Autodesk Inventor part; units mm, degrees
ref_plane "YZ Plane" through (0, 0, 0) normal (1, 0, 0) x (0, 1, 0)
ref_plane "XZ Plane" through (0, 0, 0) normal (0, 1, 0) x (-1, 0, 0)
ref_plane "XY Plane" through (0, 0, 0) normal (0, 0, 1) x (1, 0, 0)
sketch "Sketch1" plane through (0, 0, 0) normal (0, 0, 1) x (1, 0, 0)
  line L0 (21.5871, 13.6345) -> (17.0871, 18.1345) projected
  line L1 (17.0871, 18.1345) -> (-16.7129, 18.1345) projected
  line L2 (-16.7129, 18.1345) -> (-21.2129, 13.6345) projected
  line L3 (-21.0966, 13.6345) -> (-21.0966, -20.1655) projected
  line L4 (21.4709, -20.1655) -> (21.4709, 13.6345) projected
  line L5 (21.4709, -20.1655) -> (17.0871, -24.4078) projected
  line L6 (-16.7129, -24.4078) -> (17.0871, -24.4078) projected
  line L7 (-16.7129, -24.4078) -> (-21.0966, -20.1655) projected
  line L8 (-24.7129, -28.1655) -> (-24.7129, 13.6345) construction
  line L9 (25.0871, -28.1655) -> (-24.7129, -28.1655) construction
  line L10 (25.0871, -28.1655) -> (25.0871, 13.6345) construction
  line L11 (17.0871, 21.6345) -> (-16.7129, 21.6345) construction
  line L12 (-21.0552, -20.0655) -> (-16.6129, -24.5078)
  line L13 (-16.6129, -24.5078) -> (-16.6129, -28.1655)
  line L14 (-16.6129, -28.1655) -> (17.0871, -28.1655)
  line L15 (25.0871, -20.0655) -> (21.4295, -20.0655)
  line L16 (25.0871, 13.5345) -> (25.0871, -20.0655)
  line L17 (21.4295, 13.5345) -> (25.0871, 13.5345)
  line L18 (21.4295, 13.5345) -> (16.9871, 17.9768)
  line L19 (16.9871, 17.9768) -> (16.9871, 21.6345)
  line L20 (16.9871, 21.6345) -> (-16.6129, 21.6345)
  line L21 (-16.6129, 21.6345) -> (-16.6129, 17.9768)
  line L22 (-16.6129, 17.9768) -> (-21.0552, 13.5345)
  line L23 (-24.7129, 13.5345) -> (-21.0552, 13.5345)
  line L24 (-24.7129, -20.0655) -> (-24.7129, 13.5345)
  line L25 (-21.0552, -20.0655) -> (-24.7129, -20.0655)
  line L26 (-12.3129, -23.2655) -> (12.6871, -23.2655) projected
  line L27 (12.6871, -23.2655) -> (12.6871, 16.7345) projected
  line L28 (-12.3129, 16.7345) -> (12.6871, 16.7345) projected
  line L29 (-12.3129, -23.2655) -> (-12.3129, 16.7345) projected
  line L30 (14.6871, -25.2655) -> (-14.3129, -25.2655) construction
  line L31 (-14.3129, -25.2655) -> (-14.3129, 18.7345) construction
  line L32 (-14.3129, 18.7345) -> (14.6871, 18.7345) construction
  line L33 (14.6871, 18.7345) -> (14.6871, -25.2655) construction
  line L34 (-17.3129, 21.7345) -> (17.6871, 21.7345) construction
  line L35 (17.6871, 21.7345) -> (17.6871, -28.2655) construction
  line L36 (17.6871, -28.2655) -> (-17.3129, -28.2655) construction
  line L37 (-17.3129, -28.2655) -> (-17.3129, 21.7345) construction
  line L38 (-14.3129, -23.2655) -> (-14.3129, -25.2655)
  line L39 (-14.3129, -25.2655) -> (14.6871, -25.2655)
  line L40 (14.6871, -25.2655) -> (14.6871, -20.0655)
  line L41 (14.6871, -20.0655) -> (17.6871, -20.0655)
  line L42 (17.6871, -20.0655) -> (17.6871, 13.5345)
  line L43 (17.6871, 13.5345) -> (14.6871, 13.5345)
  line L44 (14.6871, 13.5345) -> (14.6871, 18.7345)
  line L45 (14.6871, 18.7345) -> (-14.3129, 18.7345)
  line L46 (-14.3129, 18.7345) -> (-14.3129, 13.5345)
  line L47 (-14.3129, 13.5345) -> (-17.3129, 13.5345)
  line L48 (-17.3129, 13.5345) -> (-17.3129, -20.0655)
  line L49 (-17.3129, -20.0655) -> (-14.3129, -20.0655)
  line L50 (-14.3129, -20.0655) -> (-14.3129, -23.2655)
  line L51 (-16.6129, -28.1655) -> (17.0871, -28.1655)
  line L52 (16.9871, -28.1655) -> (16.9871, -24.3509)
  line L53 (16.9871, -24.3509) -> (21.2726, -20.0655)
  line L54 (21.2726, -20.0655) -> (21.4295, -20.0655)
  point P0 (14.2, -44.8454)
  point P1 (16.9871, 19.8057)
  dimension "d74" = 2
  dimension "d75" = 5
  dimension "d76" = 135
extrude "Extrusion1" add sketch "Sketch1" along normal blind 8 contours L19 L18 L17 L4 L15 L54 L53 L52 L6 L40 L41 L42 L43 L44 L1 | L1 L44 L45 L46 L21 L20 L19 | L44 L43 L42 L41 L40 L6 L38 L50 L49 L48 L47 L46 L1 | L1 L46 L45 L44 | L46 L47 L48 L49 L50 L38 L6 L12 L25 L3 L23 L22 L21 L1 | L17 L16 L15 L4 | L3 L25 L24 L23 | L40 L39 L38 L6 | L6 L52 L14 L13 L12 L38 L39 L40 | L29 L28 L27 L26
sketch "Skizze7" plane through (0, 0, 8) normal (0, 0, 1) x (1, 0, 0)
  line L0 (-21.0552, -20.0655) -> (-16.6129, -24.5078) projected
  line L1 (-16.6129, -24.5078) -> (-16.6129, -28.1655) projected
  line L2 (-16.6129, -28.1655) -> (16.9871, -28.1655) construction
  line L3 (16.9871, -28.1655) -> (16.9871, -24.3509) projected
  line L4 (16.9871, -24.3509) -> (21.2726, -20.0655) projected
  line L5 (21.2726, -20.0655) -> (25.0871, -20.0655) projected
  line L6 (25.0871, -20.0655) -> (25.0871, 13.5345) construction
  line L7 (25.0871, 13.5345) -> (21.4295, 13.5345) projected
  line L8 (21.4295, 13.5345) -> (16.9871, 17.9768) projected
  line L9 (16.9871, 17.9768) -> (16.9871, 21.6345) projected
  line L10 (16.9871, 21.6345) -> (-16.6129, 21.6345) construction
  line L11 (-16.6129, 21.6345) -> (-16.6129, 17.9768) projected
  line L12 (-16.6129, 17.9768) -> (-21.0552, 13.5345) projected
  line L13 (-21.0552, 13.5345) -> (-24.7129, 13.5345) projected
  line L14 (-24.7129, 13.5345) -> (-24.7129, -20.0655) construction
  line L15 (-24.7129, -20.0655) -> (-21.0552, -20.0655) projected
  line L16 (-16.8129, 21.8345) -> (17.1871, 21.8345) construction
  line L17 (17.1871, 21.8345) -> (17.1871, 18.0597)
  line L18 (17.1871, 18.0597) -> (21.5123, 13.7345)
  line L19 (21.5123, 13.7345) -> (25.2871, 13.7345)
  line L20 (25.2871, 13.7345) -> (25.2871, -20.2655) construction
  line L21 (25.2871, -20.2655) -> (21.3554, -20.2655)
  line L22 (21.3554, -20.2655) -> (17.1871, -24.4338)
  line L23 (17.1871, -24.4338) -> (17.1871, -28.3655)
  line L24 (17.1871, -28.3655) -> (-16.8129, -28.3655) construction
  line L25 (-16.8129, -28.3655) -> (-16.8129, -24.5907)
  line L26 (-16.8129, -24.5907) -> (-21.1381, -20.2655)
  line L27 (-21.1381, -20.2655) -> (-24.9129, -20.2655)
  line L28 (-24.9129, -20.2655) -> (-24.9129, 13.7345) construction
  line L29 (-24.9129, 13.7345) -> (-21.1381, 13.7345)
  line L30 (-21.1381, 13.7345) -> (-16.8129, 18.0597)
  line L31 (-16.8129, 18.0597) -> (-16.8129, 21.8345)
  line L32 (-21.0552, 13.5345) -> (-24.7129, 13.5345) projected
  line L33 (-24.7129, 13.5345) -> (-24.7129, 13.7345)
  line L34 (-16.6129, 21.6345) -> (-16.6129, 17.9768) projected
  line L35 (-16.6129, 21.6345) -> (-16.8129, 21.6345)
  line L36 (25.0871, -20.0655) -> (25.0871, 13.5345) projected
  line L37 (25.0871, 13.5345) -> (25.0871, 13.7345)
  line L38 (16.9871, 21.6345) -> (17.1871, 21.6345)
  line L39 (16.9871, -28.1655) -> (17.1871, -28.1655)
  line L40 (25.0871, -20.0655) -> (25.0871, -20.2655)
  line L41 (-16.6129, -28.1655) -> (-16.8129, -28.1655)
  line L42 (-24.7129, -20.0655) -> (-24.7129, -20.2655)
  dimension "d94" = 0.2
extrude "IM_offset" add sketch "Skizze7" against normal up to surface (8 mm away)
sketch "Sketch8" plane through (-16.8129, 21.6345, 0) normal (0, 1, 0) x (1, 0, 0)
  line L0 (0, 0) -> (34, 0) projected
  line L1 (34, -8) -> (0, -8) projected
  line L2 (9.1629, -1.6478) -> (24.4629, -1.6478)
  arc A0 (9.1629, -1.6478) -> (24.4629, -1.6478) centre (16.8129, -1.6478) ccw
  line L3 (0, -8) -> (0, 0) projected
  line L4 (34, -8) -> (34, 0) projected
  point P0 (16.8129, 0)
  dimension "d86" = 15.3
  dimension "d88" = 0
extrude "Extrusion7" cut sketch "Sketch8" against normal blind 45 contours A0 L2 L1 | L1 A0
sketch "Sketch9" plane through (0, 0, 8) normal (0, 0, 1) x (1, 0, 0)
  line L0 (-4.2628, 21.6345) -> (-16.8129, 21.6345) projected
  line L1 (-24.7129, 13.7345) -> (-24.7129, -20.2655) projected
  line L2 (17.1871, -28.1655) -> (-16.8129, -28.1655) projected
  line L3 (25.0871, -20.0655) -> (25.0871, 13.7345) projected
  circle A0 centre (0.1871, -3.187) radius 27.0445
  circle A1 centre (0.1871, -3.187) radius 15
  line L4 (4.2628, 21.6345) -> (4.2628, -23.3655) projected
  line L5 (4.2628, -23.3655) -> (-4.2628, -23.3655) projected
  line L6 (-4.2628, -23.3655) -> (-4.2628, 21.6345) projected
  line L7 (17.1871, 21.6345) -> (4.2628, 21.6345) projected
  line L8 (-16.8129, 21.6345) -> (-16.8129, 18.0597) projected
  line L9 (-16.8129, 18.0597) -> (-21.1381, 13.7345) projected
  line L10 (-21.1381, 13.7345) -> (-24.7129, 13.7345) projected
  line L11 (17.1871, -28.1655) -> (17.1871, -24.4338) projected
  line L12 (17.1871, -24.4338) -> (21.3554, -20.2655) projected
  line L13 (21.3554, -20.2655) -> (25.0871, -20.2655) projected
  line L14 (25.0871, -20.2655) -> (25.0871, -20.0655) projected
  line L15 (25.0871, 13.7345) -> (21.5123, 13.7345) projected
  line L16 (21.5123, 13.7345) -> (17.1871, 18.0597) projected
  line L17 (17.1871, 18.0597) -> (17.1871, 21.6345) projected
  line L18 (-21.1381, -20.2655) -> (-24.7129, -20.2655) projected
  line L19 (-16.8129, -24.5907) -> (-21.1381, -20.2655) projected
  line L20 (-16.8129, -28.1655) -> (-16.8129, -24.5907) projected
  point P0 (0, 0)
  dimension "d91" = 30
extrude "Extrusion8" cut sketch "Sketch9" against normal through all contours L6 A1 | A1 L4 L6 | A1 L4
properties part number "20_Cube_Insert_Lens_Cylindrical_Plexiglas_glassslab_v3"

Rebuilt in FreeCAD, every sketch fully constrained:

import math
import FreeCAD as App
import Part
import Sketcher
Q = App.Units.Quantity


def add_polygon(sketch, points):
    """Adds a closed chain of lines whose ends are joined by coincident constraints."""
    first, n = sketch.GeometryCount, len(points)
    for a, b in zip(points, points[1:] + points[:1]):
        sketch.addGeometry(Part.LineSegment(App.Vector(*a, 0), App.Vector(*b, 0)), False)
    for i in range(n):
        sketch.addConstraint(Sketcher.Constraint("Coincident", first + i, 2, first + (i + 1) % n, 1))

doc = App.newDocument("Part")
body = doc.addObject("PartDesign::Body", "Body")

# Sketch on XY plane
sketch1 = body.newObject("Sketcher::SketchObject", "Sketch")
sketch1.AttachmentSupport = (doc.getObject("XY_Plane"), [""])
sketch1.MapMode = "FlatFace"
add_polygon(sketch1, [(17, 18), (17, 21.6), (-16.6, 21.6), (-16.6, 18), (-21.1, 13.5), (-24.7, 13.5), (-24.7, -20.1), (-21.1, -20.1), (-16.6, -24.5), (-16.6, -28.2), (17, -28.2), (17, -24.4), (21.3, -20.1), (25.1, -20.1), (25.1, 13.5), (21.4, 13.5)])  # lines 0-15
sketch1.addConstraint(Sketcher.Constraint("Vertical", 0))
sketch1.addConstraint(Sketcher.Constraint("Horizontal", 1))
sketch1.addConstraint(Sketcher.Constraint("Vertical", 2))
sketch1.addConstraint(Sketcher.Constraint("Horizontal", 4))
sketch1.addConstraint(Sketcher.Constraint("Vertical", 5))
sketch1.addConstraint(Sketcher.Constraint("Horizontal", 6))
sketch1.addConstraint(Sketcher.Constraint("Vertical", 8))
sketch1.addConstraint(Sketcher.Constraint("Horizontal", 9))
sketch1.addConstraint(Sketcher.Constraint("Vertical", 10))
sketch1.addConstraint(Sketcher.Constraint("Horizontal", 12))
sketch1.addConstraint(Sketcher.Constraint("Vertical", 13))
sketch1.addConstraint(Sketcher.Constraint("Horizontal", 14))
sketch1.addConstraint(Sketcher.Constraint("Perpendicular", 3, 7))
sketch1.addConstraint(Sketcher.Constraint("Perpendicular", 7, 11))
sketch1.addConstraint(Sketcher.Constraint("Perpendicular", 11, 15))
sketch1.addConstraint(Sketcher.Constraint("Horizontal", 6, 2, 11, 2))
sketch1.addConstraint(Sketcher.Constraint("Horizontal", 4, 2, 13, 2))
sketch1.addConstraint(Sketcher.Constraint("Horizontal", 2, 2, 15, 2))
sketch1.addConstraint(Sketcher.Constraint("Vertical", 3, 2, 6, 2))
sketch1.addConstraint(Sketcher.Constraint("Vertical", 2, 2, 7, 2))
sketch1.addConstraint(Sketcher.Constraint("Vertical", 0, 2, 9, 2))
sketch1.addConstraint(Sketcher.Constraint("Equal", 6, 14))
sketch1.addConstraint(Sketcher.Constraint("Equal", 14, 0))
sketch1.addConstraint(Sketcher.Constraint("Equal", 9, 5))
sketch1.addConstraint(Sketcher.Constraint("Equal", 2, 8))
sketch1.addConstraint(Sketcher.Constraint("Equal", 12, 10))
sketch1.addConstraint(Sketcher.Constraint("DistanceX", 1, 2, 1, 1, Q("33.6 mm")))
sketch1.addConstraint(Sketcher.Constraint("DistanceY", 3, 2, 1, 2, Q("8.1 mm")))
sketch1.addConstraint(Sketcher.Constraint("DistanceX", 4, 2, 4, 1, Q("3.6577 mm")))
sketch1.addConstraint(Sketcher.Constraint("DistanceX", 12, 1, 12, 2, Q("3.8145 mm")))
sketch1.addConstraint(Sketcher.Constraint("DistanceX", -1, 1, 0, 2, Q("16.987 mm")))
sketch1.addConstraint(Sketcher.Constraint("DistanceY", 10, 2, -1, 1, Q("24.351 mm")))
pad1 = body.newObject("PartDesign::Pad", "Pad")
pad1.Profile = sketch1
pad1.Length = 8

# Sketch on XY plane
sketch2 = body.newObject("Sketcher::SketchObject", "Sketch001")
sketch2.AttachmentSupport = (doc.getObject("XY_Plane"), [""])
sketch2.MapMode = "FlatFace"
sketch2.AttachmentOffset = App.Placement(App.Vector(0, 0, 8), App.Rotation())
add_polygon(sketch2, [(-16.61, -24.51), (-21.06, -20.07), (-24.71, -20.07), (-24.71, -20.27), (-21.14, -20.27), (-16.81, -24.59), (-16.81, -28.17), (-16.61, -28.17)])  # lines 0-7
add_polygon(sketch2, [(21.43, 13.53), (25.09, 13.53), (25.09, 13.73), (21.51, 13.73), (17.19, 18.06), (17.19, 21.63), (16.99, 21.63), (16.99, 17.98)])  # lines 8-15
add_polygon(sketch2, [(16.99, -24.35), (16.99, -28.17), (17.19, -28.17), (17.19, -24.43), (21.36, -20.27), (25.09, -20.27), (25.09, -20.07), (21.27, -20.07)])  # lines 16-23
add_polygon(sketch2, [(-16.61, 17.98), (-16.61, 21.63), (-16.81, 21.63), (-16.81, 18.06), (-21.14, 13.73), (-24.71, 13.73), (-24.71, 13.53), (-21.06, 13.53)])  # lines 24-31
sketch2.addConstraint(Sketcher.Constraint("Horizontal", 1))
sketch2.addConstraint(Sketcher.Constraint("Vertical", 2))
sketch2.addConstraint(Sketcher.Constraint("Horizontal", 3))
sketch2.addConstraint(Sketcher.Constraint("Vertical", 5))
sketch2.addConstraint(Sketcher.Constraint("Horizontal", 6))
sketch2.addConstraint(Sketcher.Constraint("Vertical", 7))
sketch2.addConstraint(Sketcher.Constraint("Horizontal", 8))
sketch2.addConstraint(Sketcher.Constraint("Vertical", 9))
sketch2.addConstraint(Sketcher.Constraint("Horizontal", 10))
sketch2.addConstraint(Sketcher.Constraint("Vertical", 12))
sketch2.addConstraint(Sketcher.Constraint("Horizontal", 13))
sketch2.addConstraint(Sketcher.Constraint("Vertical", 14))
sketch2.addConstraint(Sketcher.Constraint("Vertical", 16))
sketch2.addConstraint(Sketcher.Constraint("Horizontal", 17))
sketch2.addConstraint(Sketcher.Constraint("Vertical", 18))
sketch2.addConstraint(Sketcher.Constraint("Horizontal", 20))
sketch2.addConstraint(Sketcher.Constraint("Vertical", 21))
sketch2.addConstraint(Sketcher.Constraint("Horizontal", 22))
sketch2.addConstraint(Sketcher.Constraint("Vertical", 24))
sketch2.addConstraint(Sketcher.Constraint("Horizontal", 25))
sketch2.addConstraint(Sketcher.Constraint("Vertical", 26))
sketch2.addConstraint(Sketcher.Constraint("Horizontal", 28))
sketch2.addConstraint(Sketcher.Constraint("Vertical", 29))
sketch2.addConstraint(Sketcher.Constraint("Horizontal", 30))
sketch2.addConstraint(Sketcher.Constraint("Parallel", 0, 4))
sketch2.addConstraint(Sketcher.Constraint("Parallel", 4, 11))
sketch2.addConstraint(Sketcher.Constraint("Parallel", 11, 15))
sketch2.addConstraint(Sketcher.Constraint("Perpendicular", 15, 19))
sketch2.addConstraint(Sketcher.Constraint("Parallel", 19, 23))
sketch2.addConstraint(Sketcher.Constraint("Parallel", 23, 27))
sketch2.addConstraint(Sketcher.Constraint("Parallel", 27, 31))
sketch2.addConstraint(Sketcher.Constraint("Horizontal", 6, 2, 16, 2))
sketch2.addConstraint(Sketcher.Constraint("Horizontal", 3, 2, 19, 2))
sketch2.addConstraint(Sketcher.Constraint("Horizontal", 1, 2, 21, 2))
sketch2.addConstraint(Sketcher.Constraint("Horizontal", 13, 2, 24, 2))
sketch2.addConstraint(Sketcher.Constraint("Horizontal", 11, 2, 26, 2))
sketch2.addConstraint(Sketcher.Constraint("Horizontal", 10, 2, 27, 2))
sketch2.addConstraint(Sketcher.Constraint("Horizontal", 15, 2, 29, 2))
sketch2.addConstraint(Sketcher.Constraint("Horizontal", 14, 2, 31, 2))
sketch2.addConstraint(Sketcher.Constraint("Vertical", 14, 2, 16, 2))
sketch2.addConstraint(Sketcher.Constraint("Vertical", 12, 2, 17, 2))
sketch2.addConstraint(Sketcher.Constraint("Vertical", 9, 2, 20, 2))
sketch2.addConstraint(Sketcher.Constraint("Vertical", 7, 2, 24, 2))
sketch2.addConstraint(Sketcher.Constraint("Vertical", 5, 2, 25, 2))
sketch2.addConstraint(Sketcher.Constraint("Vertical", 3, 2, 27, 2))
sketch2.addConstraint(Sketcher.Constraint("Vertical", 2, 2, 28, 2))
sketch2.addConstraint(Sketcher.Constraint("Vertical", 0, 2, 30, 2))
sketch2.addConstraint(Sketcher.Constraint("Equal", 1, 8))
sketch2.addConstraint(Sketcher.Constraint("Equal", 3, 10))
sketch2.addConstraint(Sketcher.Constraint("Equal", 6, 13))
sketch2.addConstraint(Sketcher.Constraint("Equal", 25, 2))
sketch2.addConstraint(Sketcher.Constraint("Equal", 28, 5))
sketch2.addConstraint(Sketcher.Constraint("Equal", 2, 9))
sketch2.addConstraint(Sketcher.Constraint("Equal", 5, 12))
sketch2.addConstraint(Sketcher.Constraint("DistanceX", 6, 1, 6, 2, Q("0.2 mm")))
sketch2.addConstraint(Sketcher.Constraint("DistanceY", 3, 2, 9, 2, Q("34 mm")))
sketch2.addConstraint(Sketcher.Constraint("DistanceX", 5, 2, 17, 2, Q("34 mm")))
sketch2.addConstraint(Sketcher.Constraint("DistanceX", 2, 2, 4, 2, Q("7.9 mm")))
sketch2.addConstraint(Sketcher.Constraint("DistanceX", 1, 2, 1, 1, Q("3.6577 mm")))
sketch2.addConstraint(Sketcher.Constraint("DistanceX", 3, 1, 3, 2, Q("3.5748 mm")))
sketch2.addConstraint(Sketcher.Constraint("DistanceX", 20, 1, 20, 2, Q("3.7317 mm")))
sketch2.addConstraint(Sketcher.Constraint("DistanceX", 22, 2, 22, 1, Q("3.8145 mm")))
sketch2.addConstraint(Sketcher.Constraint("DistanceX", 1, 2, -1, 1, Q("24.713 mm")))
sketch2.addConstraint(Sketcher.Constraint("DistanceY", 23, 2, -1, 1, Q("24.351 mm")))
pad2 = body.newObject("PartDesign::Pad", "Pad001")
pad2.Profile = sketch2
pad2.Length = 8
pad2.Reversed = True

# Sketch on XZ plane
sketch3 = body.newObject("Sketcher::SketchObject", "Sketch002")
sketch3.AttachmentSupport = (doc.getObject("XZ_Plane"), [""])
sketch3.MapMode = "FlatFace"
sketch3.AttachmentOffset = App.Placement(App.Vector(0, 0, -21.6345), App.Rotation())
sketch3.addGeometry(Part.ArcOfCircle(Part.Circle(App.Vector(0, 2, 0), App.Vector(0, 0, 1), 8), math.radians(0), math.radians(180)), False)
sketch3.addGeometry(Part.LineSegment(App.Vector(8, 2, 0), App.Vector(-8, 2, 0)), False)
sketch3.addConstraint(Sketcher.Constraint("Coincident", 0, 1, 1, 1))
sketch3.addConstraint(Sketcher.Constraint("Coincident", 1, 2, 0, 2))
sketch3.addConstraint(Sketcher.Constraint("Horizontal", 1))
sketch3.addConstraint(Sketcher.Constraint("PointOnObject", 0, 3, -2))
sketch3.addConstraint(Sketcher.Constraint("Radius", 0, Q("7.65 mm")))
sketch3.addConstraint(Sketcher.Constraint("DistanceY", -1, 1, 0, 3, Q("1.6478 mm")))
sketch3.addConstraint(Sketcher.Constraint("DistanceY", -1, 1, 0, 1, Q("1.6478 mm")))
pocket1 = body.newObject("PartDesign::Pocket", "Pocket")
pocket1.Profile = sketch3
pocket1.Length = 45
pocket1.Reversed = True

# Sketch on XY plane
sketch4 = body.newObject("Sketcher::SketchObject", "Sketch003")
sketch4.AttachmentSupport = (doc.getObject("XY_Plane"), [""])
sketch4.MapMode = "FlatFace"
sketch4.AttachmentOffset = App.Placement(App.Vector(0, 0, 8), App.Rotation())
sketch4.addGeometry(Part.Circle(App.Vector(0, -3, 0), App.Vector(0, 0, 1), 15), False)
sketch4.addConstraint(Sketcher.Constraint("Diameter", 0, Q("30 mm")))
sketch4.addConstraint(Sketcher.Constraint("DistanceX", -1, 1, 0, 3, Q("0.187 mm")))
sketch4.addConstraint(Sketcher.Constraint("DistanceY", 0, 3, -1, 1, Q("3.187 mm")))
pocket2 = body.newObject("PartDesign::Pocket", "Pocket001")
pocket2.Profile = sketch4
pocket2.Type = "ThroughAll"

doc.recompute()
